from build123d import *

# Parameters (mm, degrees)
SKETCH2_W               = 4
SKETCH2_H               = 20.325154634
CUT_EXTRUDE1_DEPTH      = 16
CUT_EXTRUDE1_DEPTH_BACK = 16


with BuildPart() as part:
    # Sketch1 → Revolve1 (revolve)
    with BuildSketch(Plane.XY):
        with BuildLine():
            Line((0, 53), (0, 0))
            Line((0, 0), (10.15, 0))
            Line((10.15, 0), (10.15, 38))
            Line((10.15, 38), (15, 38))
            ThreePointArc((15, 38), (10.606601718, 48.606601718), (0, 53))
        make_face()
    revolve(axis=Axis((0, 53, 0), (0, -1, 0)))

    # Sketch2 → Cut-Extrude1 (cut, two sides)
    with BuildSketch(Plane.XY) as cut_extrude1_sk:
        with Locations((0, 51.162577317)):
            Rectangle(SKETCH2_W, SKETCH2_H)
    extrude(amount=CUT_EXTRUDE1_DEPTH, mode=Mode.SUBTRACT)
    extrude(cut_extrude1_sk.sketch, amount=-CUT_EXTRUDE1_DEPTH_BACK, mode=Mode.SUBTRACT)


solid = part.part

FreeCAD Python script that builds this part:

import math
import FreeCAD as App
import Part
import Sketcher
from FreeCAD import Vector
Q = App.Units.Quantity

doc = App.newDocument("Part")
body = doc.addObject("PartDesign::Body", "Body")

# Sketch on XY plane
sketch1 = body.newObject("Sketcher::SketchObject", "Sketch")
sketch1.AttachmentSupport = (doc.getObject("XY_Plane"), [""])
sketch1.MapMode = "FlatFace"
sketch1.addGeometry([
    Part.LineSegment(Vector(0, 53, 0), Vector(0, 0, 0)),  # 0
    Part.LineSegment(Vector(0, 0, 0), Vector(10.2, 0, 0)),  # 1
    Part.LineSegment(Vector(10.2, 0, 0), Vector(10.2, 38, 0)),  # 2
    Part.LineSegment(Vector(10.2, 38, 0), Vector(15, 38, 0)),  # 3
    Part.ArcOfCircle(Part.Circle(Vector(0, 38, 0), Vector(0, 0, 1), 15), math.radians(0), math.radians(90)),  # 4
], False)
sketch1.addConstraint([
    Sketcher.Constraint("Coincident", 0, 2, 1, 1),
    Sketcher.Constraint("Coincident", 1, 2, 2, 1),
    Sketcher.Constraint("Coincident", 2, 2, 3, 1),
    Sketcher.Constraint("Coincident", 3, 2, 4, 1),
    Sketcher.Constraint("Coincident", 4, 2, 0, 1),
    Sketcher.Constraint("Vertical", 0),
    Sketcher.Constraint("Horizontal", 1),
    Sketcher.Constraint("Vertical", 2),
    Sketcher.Constraint("Horizontal", 3),
    Sketcher.Constraint("Coincident", 0, 2, -1, 1),
    Sketcher.Constraint("PointOnObject", 4, 3, -2),
    Sketcher.Constraint("Horizontal", 4, 3, 2, 2),
    Sketcher.Constraint("Radius", 4, Q("15 mm")),
    Sketcher.Constraint("DistanceY", 0, 2, 0, 1, Q("53 mm")),
    Sketcher.Constraint("DistanceX", 1, 1, 1, 2, Q("10.15 mm")),
])
revolution = body.newObject("PartDesign::Revolution", "Revolution")
revolution.Profile = sketch1
revolution.ReferenceAxis = (sketch1, ["V_Axis"])
revolution.Angle = 360

# Sketch on XY plane
sketch2 = body.newObject("Sketcher::SketchObject", "Sketch001")
sketch2.AttachmentSupport = (doc.getObject("XY_Plane"), [""])
sketch2.MapMode = "FlatFace"
sketch2.addGeometry([
    Part.LineSegment(Vector(-2, 61.3, 0), Vector(-2, 41, 0)),
    Part.LineSegment(Vector(-2, 41, 0), Vector(2, 41, 0)),
    Part.LineSegment(Vector(2, 41, 0), Vector(2, 61.3, 0)),
    Part.LineSegment(Vector(2, 61.3, 0), Vector(-2, 61.3, 0)),
], False)
sketch2.addConstraint([
    Sketcher.Constraint("Coincident", 0, 2, 1, 1),
    Sketcher.Constraint("Coincident", 1, 2, 2, 1),
    Sketcher.Constraint("Coincident", 2, 2, 3, 1),
    Sketcher.Constraint("Coincident", 3, 2, 0, 1),
    Sketcher.Constraint("Vertical", 0),
    Sketcher.Constraint("Horizontal", 1),
    Sketcher.Constraint("Vertical", 2),
    Sketcher.Constraint("Horizontal", 3),
    Sketcher.Constraint("DistanceX", 1, 1, 1, 2, Q("4 mm")),
    Sketcher.Constraint("DistanceX", 0, 2, -1, 1, Q("2 mm")),
    Sketcher.Constraint("DistanceY", -1, 1, 0, 2, Q("41 mm")),
    Sketcher.Constraint("DistanceY", 0, 2, 0, 1, Q("20.325155 mm")),
])
pocket1 = body.newObject("PartDesign::Pocket", "Pocket")
pocket1.Profile = sketch2
pocket1.Type = "ThroughAll"
pocket1.Midplane = True

doc.recompute()
